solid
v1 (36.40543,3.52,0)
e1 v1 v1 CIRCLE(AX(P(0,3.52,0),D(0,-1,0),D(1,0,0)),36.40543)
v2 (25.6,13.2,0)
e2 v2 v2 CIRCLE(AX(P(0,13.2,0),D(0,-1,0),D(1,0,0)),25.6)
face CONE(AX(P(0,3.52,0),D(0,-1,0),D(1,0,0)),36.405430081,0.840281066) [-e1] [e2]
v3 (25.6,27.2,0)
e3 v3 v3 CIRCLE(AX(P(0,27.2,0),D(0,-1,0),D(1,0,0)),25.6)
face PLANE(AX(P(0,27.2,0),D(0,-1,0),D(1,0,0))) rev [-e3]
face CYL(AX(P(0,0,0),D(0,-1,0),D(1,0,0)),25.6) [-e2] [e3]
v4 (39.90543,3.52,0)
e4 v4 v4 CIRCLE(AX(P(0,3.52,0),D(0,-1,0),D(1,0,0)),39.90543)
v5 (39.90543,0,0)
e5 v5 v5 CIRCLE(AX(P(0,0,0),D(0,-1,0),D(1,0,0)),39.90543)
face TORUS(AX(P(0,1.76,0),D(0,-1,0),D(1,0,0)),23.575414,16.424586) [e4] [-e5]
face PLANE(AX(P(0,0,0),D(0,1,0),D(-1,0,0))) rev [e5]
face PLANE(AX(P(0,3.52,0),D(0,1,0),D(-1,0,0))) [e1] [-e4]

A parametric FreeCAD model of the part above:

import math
import FreeCAD as App
import Part
import Sketcher

doc = App.newDocument("Part")
body = doc.addObject("PartDesign::Body", "Body")

sketch1 = doc.addObject("Sketcher::SketchObject", "Sketch")
body.addObject(sketch1)
sketch1.AttachmentSupport = (doc.XY_Plane, [""])
sketch1.MapMode = "FlatFace"
sketch1.addGeometry(Part.LineSegment(App.Vector(0, 27.2, 0), App.Vector(0, 0, 0)), False)
sketch1.addGeometry(Part.LineSegment(App.Vector(0, 0, 0), App.Vector(39.9, 0, 0)), False)
sketch1.addGeometry(Part.ArcOfCircle(Part.Circle(App.Vector(23.6, 1.8, 0), App.Vector(0, 0, 1), 16.4), math.radians(-6.15), math.radians(6.15)), False)
sketch1.addGeometry(Part.LineSegment(App.Vector(39.9, 3.5, 0), App.Vector(36.4, 3.5, 0)), False)
sketch1.addGeometry(Part.LineSegment(App.Vector(36.4, 3.5, 0), App.Vector(25.6, 13.2, 0)), False)
sketch1.addGeometry(Part.LineSegment(App.Vector(25.6, 13.2, 0), App.Vector(25.6, 27.2, 0)), False)
sketch1.addGeometry(Part.LineSegment(App.Vector(25.6, 27.2, 0), App.Vector(0, 27.2, 0)), False)
sketch1.addConstraint(Sketcher.Constraint("Coincident", 0, 2, 1, 1))
sketch1.addConstraint(Sketcher.Constraint("Coincident", 1, 2, 2, 1))
sketch1.addConstraint(Sketcher.Constraint("Coincident", 2, 2, 3, 1))
sketch1.addConstraint(Sketcher.Constraint("Coincident", 3, 2, 4, 1))
sketch1.addConstraint(Sketcher.Constraint("Coincident", 4, 2, 5, 1))
sketch1.addConstraint(Sketcher.Constraint("Coincident", 5, 2, 6, 1))
sketch1.addConstraint(Sketcher.Constraint("Coincident", 6, 2, 0, 1))
sketch1.addConstraint(Sketcher.Constraint("Vertical", 0))
sketch1.addConstraint(Sketcher.Constraint("Horizontal", 1))
sketch1.addConstraint(Sketcher.Constraint("Horizontal", 3))
sketch1.addConstraint(Sketcher.Constraint("Vertical", 5))
sketch1.addConstraint(Sketcher.Constraint("Horizontal", 6))
sketch1.addConstraint(Sketcher.Constraint("Coincident", 0, 2, -1, 1))
sketch1.addConstraint(Sketcher.Constraint("Vertical", 1, 2, 2, 2))
sketch1.addConstraint(Sketcher.Constraint("DistanceY", 5, 1, 5, 2, 14.0))
sketch1.addConstraint(Sketcher.Constraint("DistanceX", 3, 2, 3, 1, 3.5))
sketch1.addConstraint(Sketcher.Constraint("DistanceX", 6, 2, 6, 1, 25.6))
sketch1.addConstraint(Sketcher.Constraint("DistanceY", 0, 2, 0, 1, 27.2))
sketch1.addConstraint(Sketcher.Constraint("DistanceY", -1, 1, 2, 3, 1.76))
sketch1.addConstraint(Sketcher.Constraint("Radius", 2, 16.424586))
sketch1.addConstraint(Sketcher.Constraint("DistanceX", 1, 1, 1, 2, 39.90543))
revolution = doc.addObject("PartDesign::Revolution", "Revolution")
body.addObject(revolution)
revolution.Profile = sketch1
revolution.ReferenceAxis = (sketch1, ["V_Axis"])
revolution.Angle = 360

doc.recompute()
